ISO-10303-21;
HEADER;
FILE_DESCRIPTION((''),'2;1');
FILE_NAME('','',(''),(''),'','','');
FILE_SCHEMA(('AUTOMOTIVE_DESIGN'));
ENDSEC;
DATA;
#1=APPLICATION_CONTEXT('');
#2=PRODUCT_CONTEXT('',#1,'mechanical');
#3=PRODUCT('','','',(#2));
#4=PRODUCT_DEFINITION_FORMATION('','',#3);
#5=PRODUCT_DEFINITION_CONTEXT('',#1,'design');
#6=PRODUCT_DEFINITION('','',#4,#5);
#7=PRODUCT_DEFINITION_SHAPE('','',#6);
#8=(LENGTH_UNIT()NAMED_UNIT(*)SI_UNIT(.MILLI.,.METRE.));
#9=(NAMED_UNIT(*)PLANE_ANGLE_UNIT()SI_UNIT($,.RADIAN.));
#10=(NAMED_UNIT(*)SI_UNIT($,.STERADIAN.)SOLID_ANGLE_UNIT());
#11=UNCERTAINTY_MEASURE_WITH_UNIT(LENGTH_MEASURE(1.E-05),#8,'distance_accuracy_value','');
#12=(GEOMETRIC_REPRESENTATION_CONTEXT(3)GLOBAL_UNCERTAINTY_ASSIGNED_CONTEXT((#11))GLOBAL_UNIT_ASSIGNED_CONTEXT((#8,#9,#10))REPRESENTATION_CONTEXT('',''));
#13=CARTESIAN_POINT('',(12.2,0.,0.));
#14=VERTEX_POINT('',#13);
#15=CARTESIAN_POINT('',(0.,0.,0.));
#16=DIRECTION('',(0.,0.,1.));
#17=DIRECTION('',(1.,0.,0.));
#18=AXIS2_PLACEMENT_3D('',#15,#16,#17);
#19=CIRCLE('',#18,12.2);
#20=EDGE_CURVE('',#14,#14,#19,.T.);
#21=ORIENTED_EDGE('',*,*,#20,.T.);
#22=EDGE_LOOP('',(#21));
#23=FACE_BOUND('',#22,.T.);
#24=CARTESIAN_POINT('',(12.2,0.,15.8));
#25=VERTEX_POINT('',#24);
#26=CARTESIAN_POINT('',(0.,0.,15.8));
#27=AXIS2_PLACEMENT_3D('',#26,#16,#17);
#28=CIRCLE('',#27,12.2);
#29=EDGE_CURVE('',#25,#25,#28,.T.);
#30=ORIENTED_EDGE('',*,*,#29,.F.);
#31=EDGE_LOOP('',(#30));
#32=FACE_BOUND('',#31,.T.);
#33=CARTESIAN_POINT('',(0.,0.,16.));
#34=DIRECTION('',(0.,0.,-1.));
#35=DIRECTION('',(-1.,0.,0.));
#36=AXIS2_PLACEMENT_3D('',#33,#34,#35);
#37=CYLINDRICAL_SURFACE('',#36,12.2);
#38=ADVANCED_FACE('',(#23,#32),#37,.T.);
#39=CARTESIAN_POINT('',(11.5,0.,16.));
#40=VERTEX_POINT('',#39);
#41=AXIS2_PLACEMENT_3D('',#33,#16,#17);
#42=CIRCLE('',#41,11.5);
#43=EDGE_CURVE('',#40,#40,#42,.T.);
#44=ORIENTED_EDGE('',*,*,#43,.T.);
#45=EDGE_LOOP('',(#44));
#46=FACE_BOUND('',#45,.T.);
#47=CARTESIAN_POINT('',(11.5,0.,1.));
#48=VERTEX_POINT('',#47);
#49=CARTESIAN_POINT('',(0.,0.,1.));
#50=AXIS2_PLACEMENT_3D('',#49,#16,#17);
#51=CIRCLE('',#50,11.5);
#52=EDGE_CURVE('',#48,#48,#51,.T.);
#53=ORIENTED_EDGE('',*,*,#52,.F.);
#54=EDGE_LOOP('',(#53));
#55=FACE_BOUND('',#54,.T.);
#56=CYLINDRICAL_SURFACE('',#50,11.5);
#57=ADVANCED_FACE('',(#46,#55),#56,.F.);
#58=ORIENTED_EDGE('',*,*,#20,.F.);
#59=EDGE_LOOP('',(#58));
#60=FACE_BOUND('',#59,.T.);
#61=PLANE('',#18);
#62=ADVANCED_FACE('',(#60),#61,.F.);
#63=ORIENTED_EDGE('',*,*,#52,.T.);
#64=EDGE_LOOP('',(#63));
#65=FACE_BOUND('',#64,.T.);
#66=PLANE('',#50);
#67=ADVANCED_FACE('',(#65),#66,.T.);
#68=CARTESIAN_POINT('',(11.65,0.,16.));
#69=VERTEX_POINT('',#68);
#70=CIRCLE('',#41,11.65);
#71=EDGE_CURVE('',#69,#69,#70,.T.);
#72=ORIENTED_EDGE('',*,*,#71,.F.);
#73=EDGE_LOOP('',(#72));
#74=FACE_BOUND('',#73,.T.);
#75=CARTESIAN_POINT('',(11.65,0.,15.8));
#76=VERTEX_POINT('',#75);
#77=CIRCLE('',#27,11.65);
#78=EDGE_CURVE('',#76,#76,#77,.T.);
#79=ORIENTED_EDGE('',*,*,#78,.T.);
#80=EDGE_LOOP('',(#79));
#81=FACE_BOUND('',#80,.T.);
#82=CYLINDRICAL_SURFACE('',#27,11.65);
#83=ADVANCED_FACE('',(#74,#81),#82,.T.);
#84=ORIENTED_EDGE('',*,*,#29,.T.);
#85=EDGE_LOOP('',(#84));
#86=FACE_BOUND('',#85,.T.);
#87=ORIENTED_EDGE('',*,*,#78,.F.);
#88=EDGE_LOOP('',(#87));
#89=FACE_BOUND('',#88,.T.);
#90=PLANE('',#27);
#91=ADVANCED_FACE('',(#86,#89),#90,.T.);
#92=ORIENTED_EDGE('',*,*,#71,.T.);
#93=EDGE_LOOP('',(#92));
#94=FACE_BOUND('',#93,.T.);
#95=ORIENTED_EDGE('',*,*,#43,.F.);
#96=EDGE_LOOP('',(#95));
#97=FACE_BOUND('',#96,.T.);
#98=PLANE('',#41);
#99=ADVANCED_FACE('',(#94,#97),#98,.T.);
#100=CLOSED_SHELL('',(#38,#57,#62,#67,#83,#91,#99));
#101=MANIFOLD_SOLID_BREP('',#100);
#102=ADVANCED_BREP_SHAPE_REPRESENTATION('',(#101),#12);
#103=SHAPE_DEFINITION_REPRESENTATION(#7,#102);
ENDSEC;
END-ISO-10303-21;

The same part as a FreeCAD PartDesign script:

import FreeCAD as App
import Part
import Sketcher
Q = App.Units.Quantity

doc = App.newDocument("Part")
body = doc.addObject("PartDesign::Body", "Body")

# Sketch on XY plane
sketch1 = body.newObject("Sketcher::SketchObject", "Sketch")
sketch1.AttachmentSupport = (doc.getObject("XY_Plane"), [""])
sketch1.MapMode = "FlatFace"
sketch1.addGeometry(Part.Circle(App.Vector(0, 0, 0), App.Vector(0, 0, 1), 12), False)
sketch1.addConstraint(Sketcher.Constraint("Coincident", 0, 3, -1, 1))
sketch1.addConstraint(Sketcher.Constraint("Diameter", 0, Q("24.4 mm")))
pad1 = body.newObject("PartDesign::Pad", "Pad")
pad1.Profile = sketch1
pad1.Length = 16

# Sketch on XY plane
sketch2 = body.newObject("Sketcher::SketchObject", "Sketch001")
sketch2.AttachmentSupport = (doc.getObject("XY_Plane"), [""])
sketch2.MapMode = "FlatFace"
sketch2.AttachmentOffset = App.Placement(App.Vector(0, 0, 16), App.Rotation())
sketch2.addGeometry(Part.Circle(App.Vector(0, 0, 0), App.Vector(0, 0, 1), 12), False)
sketch2.addConstraint(Sketcher.Constraint("Coincident", 0, 3, -1, 1))
sketch2.addConstraint(Sketcher.Constraint("Diameter", 0, Q("23 mm")))
pocket1 = body.newObject("PartDesign::Pocket", "Pocket")
pocket1.Profile = sketch2
pocket1.Length = 15

# Sketch on XY plane
sketch3 = body.newObject("Sketcher::SketchObject", "Sketch002")
sketch3.AttachmentSupport = (doc.getObject("XY_Plane"), [""])
sketch3.MapMode = "FlatFace"
sketch3.AttachmentOffset = App.Placement(App.Vector(0, 0, 15.8), App.Rotation())
sketch3.addGeometry(Part.Circle(App.Vector(0, 0, 0), App.Vector(0, 0, 1), 12), False)
sketch3.addGeometry(Part.Circle(App.Vector(0, 0, 0), App.Vector(0, 0, 1), 12), False)
sketch3.addConstraint(Sketcher.Constraint("Coincident", 0, 3, -1, 1))
sketch3.addConstraint(Sketcher.Constraint("Coincident", 1, 3, -1, 1))
sketch3.addConstraint(Sketcher.Constraint("Diameter", 0, Q("24.4 mm")))
sketch3.addConstraint(Sketcher.Constraint("Diameter", 1, Q("23.3 mm")))
pocket2 = body.newObject("PartDesign::Pocket", "Pocket001")
pocket2.Profile = sketch3
pocket2.Length = 0.2
pocket2.Reversed = True

doc.recompute()
